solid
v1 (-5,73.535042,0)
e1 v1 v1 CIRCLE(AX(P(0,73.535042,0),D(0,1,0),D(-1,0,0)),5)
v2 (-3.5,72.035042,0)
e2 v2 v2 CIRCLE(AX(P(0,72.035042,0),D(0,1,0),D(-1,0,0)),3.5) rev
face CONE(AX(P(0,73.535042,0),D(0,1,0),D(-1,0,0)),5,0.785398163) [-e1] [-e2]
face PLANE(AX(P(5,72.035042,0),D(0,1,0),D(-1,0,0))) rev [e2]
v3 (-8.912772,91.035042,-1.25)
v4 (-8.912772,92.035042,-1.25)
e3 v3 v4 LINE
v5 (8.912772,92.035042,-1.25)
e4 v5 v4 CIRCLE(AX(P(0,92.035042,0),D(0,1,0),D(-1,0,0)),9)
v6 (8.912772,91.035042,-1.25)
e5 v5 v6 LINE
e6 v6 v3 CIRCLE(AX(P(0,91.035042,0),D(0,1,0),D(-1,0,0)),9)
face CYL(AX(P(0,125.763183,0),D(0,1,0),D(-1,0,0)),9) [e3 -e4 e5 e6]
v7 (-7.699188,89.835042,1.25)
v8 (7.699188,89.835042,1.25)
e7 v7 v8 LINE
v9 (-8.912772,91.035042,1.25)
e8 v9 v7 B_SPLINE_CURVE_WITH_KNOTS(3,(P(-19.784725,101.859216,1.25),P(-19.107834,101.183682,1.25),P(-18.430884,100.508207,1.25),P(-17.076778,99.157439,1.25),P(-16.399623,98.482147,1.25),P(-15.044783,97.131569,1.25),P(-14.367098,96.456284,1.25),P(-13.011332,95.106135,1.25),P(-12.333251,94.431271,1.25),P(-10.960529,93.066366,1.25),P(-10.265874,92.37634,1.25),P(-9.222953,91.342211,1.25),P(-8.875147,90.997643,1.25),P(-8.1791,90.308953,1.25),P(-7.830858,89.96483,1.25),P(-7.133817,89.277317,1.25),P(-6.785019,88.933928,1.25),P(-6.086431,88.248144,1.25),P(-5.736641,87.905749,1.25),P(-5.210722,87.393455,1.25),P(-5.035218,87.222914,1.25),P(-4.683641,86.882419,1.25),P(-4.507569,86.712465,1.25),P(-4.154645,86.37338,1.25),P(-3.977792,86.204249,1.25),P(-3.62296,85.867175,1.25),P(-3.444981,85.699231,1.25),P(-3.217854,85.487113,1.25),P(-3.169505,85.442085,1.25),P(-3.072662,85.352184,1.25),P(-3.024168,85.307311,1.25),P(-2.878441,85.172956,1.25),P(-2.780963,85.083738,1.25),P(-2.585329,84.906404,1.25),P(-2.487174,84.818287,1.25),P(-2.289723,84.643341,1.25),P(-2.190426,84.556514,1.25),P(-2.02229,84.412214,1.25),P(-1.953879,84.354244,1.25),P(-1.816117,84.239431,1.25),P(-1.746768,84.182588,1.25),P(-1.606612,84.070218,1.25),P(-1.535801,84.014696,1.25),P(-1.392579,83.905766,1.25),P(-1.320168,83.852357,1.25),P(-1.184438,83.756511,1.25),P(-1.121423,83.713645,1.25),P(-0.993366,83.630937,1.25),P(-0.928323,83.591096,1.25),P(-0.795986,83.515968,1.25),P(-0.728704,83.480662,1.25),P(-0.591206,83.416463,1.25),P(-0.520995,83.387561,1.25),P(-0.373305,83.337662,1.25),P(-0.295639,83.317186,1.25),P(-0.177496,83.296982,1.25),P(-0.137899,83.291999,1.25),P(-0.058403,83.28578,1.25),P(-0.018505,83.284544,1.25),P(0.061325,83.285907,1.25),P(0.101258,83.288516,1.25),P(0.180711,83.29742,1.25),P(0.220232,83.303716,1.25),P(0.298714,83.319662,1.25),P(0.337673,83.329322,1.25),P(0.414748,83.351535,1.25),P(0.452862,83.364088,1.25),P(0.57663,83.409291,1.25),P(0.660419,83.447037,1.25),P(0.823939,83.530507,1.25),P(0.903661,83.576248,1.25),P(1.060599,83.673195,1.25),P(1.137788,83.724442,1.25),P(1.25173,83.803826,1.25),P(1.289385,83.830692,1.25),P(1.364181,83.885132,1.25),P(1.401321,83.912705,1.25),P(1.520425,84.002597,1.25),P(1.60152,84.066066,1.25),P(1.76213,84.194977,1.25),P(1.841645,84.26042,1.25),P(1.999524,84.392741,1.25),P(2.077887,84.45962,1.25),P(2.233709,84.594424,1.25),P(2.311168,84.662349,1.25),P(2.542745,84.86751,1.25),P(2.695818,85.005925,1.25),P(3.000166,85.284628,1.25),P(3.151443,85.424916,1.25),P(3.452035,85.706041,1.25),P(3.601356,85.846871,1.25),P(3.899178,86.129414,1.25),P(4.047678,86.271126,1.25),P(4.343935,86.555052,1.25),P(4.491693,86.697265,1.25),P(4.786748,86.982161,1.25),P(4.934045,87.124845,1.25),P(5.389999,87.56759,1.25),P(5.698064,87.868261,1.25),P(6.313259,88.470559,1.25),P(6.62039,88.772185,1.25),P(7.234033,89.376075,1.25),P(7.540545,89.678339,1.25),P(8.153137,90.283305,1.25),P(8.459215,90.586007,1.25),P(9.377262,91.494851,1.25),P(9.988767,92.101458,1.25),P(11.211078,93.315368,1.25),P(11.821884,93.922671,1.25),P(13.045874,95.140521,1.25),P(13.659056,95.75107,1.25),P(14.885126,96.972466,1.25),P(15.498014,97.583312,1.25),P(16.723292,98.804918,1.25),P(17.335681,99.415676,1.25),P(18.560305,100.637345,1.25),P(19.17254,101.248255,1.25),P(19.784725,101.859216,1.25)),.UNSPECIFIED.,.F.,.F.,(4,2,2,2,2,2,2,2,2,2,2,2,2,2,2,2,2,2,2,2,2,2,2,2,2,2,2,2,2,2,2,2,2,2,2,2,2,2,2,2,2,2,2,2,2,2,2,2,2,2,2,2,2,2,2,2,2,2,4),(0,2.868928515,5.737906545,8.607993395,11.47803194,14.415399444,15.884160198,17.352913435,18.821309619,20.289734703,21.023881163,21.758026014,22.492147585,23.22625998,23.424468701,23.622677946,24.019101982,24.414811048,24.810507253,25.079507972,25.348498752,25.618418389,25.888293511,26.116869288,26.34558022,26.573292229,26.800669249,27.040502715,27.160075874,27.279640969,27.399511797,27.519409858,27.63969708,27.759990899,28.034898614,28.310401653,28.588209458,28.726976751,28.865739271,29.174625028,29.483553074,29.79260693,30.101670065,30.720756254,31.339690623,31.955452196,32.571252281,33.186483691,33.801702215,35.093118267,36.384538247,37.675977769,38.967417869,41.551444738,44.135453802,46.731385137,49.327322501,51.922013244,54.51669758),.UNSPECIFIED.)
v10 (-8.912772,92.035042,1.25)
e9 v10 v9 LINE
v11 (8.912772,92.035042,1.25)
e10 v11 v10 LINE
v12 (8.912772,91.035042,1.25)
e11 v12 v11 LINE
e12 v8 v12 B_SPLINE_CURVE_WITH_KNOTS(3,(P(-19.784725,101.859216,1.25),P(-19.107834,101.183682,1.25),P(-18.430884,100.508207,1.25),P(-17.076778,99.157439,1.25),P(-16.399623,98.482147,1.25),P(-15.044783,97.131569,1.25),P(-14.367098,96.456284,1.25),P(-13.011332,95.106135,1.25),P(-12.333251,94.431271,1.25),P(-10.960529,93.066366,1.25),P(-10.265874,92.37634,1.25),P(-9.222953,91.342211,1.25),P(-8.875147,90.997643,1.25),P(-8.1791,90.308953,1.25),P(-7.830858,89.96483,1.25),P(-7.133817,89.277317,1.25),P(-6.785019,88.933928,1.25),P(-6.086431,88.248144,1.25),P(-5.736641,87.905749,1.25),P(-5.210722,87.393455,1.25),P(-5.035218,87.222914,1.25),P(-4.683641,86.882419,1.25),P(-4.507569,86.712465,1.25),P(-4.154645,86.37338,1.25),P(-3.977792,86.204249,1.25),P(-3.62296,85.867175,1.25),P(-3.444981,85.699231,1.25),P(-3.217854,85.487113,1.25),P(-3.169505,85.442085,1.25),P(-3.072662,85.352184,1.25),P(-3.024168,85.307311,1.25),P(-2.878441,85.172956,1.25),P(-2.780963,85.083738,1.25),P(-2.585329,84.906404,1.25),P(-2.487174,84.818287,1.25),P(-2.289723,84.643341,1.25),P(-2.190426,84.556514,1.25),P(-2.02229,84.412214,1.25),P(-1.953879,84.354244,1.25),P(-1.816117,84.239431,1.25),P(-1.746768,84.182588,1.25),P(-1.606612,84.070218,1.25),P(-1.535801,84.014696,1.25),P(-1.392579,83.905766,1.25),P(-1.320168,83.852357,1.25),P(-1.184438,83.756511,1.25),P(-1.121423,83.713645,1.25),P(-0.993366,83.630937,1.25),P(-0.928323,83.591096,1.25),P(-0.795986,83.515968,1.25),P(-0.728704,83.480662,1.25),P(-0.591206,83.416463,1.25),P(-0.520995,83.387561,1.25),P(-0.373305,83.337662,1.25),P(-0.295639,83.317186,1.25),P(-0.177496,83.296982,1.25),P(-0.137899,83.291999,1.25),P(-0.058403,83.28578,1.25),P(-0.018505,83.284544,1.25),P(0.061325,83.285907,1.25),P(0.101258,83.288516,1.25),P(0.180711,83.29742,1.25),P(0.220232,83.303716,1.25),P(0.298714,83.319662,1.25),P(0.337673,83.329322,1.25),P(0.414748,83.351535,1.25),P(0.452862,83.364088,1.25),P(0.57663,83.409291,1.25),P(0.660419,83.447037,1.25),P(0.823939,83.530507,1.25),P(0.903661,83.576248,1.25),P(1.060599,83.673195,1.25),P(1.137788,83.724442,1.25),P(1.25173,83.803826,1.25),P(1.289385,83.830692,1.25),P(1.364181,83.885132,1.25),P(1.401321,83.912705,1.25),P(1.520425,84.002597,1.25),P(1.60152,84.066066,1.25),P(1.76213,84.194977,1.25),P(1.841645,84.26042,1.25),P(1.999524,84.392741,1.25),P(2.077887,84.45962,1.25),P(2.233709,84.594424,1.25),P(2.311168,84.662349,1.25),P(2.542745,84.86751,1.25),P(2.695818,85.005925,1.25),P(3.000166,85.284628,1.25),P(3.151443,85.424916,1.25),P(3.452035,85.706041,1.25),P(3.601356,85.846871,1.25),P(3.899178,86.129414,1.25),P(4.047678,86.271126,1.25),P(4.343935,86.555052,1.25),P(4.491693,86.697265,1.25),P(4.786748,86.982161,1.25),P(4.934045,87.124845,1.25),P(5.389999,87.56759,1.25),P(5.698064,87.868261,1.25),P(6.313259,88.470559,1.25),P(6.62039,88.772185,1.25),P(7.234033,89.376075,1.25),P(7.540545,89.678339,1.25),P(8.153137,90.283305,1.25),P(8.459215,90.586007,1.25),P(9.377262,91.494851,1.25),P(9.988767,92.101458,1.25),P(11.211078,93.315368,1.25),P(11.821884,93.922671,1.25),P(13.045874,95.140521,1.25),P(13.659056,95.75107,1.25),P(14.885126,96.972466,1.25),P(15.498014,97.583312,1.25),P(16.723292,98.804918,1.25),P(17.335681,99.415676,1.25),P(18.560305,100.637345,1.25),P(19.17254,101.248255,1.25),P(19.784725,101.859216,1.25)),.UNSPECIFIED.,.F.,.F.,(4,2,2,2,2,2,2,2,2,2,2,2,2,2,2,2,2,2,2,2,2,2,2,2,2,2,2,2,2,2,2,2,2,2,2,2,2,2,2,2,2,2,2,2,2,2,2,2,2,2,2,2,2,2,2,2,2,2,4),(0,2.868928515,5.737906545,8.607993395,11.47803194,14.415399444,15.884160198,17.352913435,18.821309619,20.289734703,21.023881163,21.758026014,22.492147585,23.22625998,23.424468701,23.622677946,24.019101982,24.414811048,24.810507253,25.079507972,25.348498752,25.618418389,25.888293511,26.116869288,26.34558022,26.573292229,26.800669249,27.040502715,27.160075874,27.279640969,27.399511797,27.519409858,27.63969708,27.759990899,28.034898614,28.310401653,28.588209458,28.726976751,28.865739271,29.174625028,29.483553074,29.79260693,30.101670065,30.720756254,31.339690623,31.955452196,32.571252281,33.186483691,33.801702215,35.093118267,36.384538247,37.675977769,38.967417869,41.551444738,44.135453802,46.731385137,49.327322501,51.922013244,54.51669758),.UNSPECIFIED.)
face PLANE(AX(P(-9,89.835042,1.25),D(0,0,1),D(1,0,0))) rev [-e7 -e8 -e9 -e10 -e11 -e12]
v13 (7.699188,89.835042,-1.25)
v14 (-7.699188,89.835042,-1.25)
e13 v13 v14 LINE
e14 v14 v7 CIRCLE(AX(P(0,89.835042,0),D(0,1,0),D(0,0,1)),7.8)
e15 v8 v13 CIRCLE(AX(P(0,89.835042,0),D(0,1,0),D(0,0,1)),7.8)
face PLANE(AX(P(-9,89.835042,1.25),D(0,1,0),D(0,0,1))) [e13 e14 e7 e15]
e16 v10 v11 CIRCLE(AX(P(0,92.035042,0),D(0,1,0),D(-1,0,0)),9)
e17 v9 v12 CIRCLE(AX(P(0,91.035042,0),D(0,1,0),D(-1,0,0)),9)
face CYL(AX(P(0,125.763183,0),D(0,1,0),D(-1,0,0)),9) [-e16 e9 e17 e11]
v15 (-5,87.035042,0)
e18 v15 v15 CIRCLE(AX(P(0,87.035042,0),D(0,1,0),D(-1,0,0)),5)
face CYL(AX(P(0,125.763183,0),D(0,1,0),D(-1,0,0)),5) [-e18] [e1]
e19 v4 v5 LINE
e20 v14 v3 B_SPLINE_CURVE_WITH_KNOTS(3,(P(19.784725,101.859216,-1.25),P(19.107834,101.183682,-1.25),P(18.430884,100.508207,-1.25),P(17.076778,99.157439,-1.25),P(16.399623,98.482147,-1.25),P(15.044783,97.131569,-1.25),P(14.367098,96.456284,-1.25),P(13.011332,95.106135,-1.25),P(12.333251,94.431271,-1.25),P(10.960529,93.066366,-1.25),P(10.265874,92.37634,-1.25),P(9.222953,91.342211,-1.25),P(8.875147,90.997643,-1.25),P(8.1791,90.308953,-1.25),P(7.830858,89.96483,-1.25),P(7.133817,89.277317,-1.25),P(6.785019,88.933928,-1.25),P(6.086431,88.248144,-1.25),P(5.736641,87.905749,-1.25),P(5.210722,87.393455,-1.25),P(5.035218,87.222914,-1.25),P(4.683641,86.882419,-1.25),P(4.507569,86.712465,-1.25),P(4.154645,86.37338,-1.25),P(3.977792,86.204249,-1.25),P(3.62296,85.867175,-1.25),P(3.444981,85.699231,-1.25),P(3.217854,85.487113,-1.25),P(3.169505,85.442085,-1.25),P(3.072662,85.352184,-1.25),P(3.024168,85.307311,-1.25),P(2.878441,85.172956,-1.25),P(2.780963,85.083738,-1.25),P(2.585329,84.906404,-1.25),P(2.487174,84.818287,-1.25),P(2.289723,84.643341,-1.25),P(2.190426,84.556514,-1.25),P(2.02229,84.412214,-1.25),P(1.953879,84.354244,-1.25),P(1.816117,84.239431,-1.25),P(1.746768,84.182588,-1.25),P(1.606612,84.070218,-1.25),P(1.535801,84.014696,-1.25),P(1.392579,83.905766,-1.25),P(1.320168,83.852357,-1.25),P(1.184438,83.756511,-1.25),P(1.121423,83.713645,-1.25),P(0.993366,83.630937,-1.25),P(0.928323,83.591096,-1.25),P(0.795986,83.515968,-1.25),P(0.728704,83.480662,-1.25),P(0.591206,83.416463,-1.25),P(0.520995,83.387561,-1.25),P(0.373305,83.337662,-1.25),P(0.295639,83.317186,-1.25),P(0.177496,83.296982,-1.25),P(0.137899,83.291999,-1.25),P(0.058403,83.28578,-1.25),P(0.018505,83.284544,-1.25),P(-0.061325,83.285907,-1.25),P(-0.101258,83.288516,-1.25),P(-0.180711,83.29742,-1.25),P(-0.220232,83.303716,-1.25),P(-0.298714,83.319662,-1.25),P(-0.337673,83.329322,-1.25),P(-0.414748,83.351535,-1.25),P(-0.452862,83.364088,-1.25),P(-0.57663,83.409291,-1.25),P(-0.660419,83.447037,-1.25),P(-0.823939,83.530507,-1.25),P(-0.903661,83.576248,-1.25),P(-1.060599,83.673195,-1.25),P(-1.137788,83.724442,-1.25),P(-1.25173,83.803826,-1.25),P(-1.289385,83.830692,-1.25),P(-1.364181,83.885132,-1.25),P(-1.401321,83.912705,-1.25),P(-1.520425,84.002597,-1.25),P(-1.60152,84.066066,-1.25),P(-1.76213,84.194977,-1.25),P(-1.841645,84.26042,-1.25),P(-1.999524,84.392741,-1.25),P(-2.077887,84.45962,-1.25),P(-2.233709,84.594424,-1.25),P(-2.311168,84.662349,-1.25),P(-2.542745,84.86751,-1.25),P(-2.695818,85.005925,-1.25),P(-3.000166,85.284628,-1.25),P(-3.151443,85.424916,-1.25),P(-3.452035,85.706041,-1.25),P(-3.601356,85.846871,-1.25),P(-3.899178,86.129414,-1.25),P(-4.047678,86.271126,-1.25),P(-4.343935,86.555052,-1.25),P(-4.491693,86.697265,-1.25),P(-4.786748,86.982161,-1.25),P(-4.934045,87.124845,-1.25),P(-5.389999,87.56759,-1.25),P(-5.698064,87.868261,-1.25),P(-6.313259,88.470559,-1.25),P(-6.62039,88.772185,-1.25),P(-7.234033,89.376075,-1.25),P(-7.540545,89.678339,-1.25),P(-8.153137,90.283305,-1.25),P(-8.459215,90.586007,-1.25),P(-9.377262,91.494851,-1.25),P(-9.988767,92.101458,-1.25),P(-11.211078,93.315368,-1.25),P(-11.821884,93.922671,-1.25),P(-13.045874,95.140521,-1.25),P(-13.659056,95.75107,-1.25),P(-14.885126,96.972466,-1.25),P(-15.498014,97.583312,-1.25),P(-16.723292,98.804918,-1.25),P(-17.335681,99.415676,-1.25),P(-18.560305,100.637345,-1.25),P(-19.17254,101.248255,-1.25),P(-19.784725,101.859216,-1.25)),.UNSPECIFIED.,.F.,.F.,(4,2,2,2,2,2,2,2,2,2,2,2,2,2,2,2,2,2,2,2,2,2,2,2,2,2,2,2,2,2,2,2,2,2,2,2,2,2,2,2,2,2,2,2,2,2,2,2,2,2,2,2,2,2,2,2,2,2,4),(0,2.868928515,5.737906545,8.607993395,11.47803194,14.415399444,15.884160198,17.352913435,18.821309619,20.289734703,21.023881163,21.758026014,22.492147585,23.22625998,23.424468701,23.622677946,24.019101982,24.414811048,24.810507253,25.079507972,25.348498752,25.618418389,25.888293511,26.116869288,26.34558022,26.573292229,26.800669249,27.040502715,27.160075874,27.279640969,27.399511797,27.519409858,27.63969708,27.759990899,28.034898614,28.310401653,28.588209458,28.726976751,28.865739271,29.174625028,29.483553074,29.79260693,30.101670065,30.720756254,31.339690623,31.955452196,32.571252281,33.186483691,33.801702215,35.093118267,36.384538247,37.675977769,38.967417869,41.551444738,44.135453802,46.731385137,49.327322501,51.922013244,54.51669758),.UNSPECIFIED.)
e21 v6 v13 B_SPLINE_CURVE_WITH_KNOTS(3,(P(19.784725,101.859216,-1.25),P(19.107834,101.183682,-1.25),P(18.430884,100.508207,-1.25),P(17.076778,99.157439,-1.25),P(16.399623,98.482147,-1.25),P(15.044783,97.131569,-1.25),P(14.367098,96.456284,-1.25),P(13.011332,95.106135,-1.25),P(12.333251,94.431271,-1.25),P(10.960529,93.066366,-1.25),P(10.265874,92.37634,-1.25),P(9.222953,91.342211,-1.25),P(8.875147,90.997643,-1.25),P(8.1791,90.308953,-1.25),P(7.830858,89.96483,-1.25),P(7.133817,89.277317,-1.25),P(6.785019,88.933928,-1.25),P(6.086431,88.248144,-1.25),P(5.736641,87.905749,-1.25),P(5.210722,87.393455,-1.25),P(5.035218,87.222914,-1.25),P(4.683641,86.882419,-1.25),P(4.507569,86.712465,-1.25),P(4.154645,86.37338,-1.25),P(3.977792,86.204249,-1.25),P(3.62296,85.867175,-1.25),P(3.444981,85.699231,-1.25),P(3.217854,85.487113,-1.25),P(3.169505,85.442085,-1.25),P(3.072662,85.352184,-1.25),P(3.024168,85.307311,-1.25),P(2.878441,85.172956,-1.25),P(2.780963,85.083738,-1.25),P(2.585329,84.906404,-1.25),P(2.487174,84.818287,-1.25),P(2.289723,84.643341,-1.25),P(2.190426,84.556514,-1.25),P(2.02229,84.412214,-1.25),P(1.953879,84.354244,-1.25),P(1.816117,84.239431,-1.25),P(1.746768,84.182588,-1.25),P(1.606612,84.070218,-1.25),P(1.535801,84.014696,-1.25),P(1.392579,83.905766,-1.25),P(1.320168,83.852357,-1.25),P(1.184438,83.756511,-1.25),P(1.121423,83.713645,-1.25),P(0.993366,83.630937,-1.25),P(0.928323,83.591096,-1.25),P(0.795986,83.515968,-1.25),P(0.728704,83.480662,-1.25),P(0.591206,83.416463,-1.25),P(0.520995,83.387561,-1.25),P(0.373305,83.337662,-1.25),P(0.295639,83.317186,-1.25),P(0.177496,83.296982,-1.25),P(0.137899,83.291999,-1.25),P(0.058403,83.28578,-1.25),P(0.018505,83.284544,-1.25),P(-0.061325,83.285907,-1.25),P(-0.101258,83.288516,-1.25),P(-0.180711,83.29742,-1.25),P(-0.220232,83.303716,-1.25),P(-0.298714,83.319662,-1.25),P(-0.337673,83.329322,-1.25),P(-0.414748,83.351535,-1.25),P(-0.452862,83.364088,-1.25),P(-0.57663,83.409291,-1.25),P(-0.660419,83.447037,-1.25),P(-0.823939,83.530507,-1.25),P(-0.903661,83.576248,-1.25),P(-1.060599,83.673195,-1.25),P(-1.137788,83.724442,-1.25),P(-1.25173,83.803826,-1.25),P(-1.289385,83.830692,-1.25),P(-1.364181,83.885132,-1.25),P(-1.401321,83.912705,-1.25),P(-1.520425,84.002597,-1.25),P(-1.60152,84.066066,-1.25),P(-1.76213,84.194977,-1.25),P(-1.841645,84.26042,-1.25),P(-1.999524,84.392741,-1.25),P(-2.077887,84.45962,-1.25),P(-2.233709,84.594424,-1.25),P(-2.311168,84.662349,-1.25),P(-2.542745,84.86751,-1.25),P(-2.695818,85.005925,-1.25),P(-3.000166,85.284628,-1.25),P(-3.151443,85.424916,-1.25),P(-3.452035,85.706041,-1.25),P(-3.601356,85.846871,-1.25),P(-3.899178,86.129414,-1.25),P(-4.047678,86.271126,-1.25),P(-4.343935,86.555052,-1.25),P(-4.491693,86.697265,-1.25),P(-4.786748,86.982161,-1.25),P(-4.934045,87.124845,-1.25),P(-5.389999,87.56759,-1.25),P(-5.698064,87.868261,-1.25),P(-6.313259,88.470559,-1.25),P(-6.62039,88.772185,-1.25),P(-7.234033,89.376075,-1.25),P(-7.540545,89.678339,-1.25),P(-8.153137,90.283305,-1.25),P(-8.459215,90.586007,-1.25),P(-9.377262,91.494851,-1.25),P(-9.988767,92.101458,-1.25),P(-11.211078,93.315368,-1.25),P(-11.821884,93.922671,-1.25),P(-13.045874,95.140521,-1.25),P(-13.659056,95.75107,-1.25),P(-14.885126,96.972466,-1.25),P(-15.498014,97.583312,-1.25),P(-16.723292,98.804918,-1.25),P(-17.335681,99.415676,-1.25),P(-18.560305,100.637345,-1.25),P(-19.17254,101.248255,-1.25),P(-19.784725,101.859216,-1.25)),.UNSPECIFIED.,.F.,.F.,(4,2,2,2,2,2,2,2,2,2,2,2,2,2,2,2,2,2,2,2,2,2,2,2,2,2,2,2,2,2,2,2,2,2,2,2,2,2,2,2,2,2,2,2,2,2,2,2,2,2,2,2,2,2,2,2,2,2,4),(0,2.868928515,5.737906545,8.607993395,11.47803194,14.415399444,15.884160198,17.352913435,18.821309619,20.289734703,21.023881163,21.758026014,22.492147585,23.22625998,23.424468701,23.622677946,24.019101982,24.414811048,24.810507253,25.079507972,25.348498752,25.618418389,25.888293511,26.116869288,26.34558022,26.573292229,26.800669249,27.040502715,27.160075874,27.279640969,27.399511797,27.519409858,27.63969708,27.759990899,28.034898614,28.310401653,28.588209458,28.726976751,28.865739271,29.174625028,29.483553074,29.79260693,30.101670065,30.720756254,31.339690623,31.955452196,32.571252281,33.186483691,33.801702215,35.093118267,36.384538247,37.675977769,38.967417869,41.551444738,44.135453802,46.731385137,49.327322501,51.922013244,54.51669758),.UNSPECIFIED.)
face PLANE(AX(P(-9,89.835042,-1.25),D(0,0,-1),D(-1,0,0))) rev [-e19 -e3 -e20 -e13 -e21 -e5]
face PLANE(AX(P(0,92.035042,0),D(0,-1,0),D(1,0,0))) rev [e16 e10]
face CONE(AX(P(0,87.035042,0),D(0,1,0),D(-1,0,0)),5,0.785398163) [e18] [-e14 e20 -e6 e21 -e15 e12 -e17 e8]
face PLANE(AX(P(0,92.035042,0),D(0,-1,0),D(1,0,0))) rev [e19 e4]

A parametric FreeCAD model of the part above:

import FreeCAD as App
import Part
import Sketcher
from FreeCAD import Vector
Q = App.Units.Quantity


def edges_at(feature, points):
    """Names of the edges that pass closest to the given points."""
    edges = feature.Shape.Edges
    near = lambda p: min(range(len(edges)), key=lambda i: edges[i].distToShape(Part.Vertex(*p))[0])
    return sorted({f"Edge{near(p) + 1}" for p in points})


def add_polygon(sketch, points):
    """Adds a closed chain of lines whose ends are joined by coincident constraints."""
    first, n = sketch.GeometryCount, len(points)
    for a, b in zip(points, points[1:] + points[:1]):
        sketch.addGeometry(Part.LineSegment(App.Vector(*a, 0), App.Vector(*b, 0)), False)
    for i in range(n):
        sketch.addConstraint(Sketcher.Constraint("Coincident", first + i, 2, first + (i + 1) % n, 1))

doc = App.newDocument("Part")
body = doc.addObject("PartDesign::Body", "Body")

# Sketch on XY plane
sketch1 = body.newObject("Sketcher::SketchObject", "Sketch")
sketch1.AttachmentSupport = (doc.getObject("XY_Plane"), [""])
sketch1.MapMode = "FlatFace"
add_polygon(sketch1, [(0, 92), (0, 72), (5, 72), (5, 87), (9, 91), (9, 92)])  # lines 0-5
sketch1.addConstraint(Sketcher.Constraint("Vertical", 0))
sketch1.addConstraint(Sketcher.Constraint("Horizontal", 1))
sketch1.addConstraint(Sketcher.Constraint("Vertical", 2))
sketch1.addConstraint(Sketcher.Constraint("Vertical", 4))
sketch1.addConstraint(Sketcher.Constraint("Horizontal", 5))
sketch1.addConstraint(Sketcher.Constraint("PointOnObject", 0, 2, -2))
sketch1.addConstraint(Sketcher.Constraint("DistanceX", 1, 1, 1, 2, Q("5 mm")))
sketch1.addConstraint(Sketcher.Constraint("DistanceX", 5, 2, 5, 1, Q("9 mm")))
sketch1.addConstraint(Sketcher.Constraint("DistanceY", 0, 2, 0, 1, Q("20 mm")))
sketch1.addConstraint(Sketcher.Constraint("DistanceY", 2, 1, 2, 2, Q("15 mm")))
sketch1.addConstraint(Sketcher.Constraint("DistanceY", 4, 1, 4, 2, Q("1 mm")))
sketch1.addConstraint(Sketcher.Constraint("DistanceY", -1, 1, 0, 2, Q("72.035042 mm")))
revolution = body.newObject("PartDesign::Revolution", "Revolution")
revolution.Profile = sketch1
revolution.ReferenceAxis = (sketch1, ["V_Axis"])
revolution.Angle = 360

# Sketch on XZ plane
sketch2 = body.newObject("Sketcher::SketchObject", "Sketch001")
sketch2.AttachmentSupport = (doc.getObject("XZ_Plane"), [""])
sketch2.MapMode = "FlatFace"
sketch2.AttachmentOffset = App.Placement(Vector(0, 0, -92.035042), App.Rotation())
add_polygon(sketch2, [(9, 1.2), (9, -1.2), (-9, -1.2), (-9, 1.2)])  # lines 0-3
sketch2.addConstraint(Sketcher.Constraint("Vertical", 0))
sketch2.addConstraint(Sketcher.Constraint("Horizontal", 1))
sketch2.addConstraint(Sketcher.Constraint("Vertical", 2))
sketch2.addConstraint(Sketcher.Constraint("Horizontal", 3))
sketch2.addConstraint(Sketcher.Constraint("Symmetric", 0, 2, 2, 2, -1, 1))
sketch2.addConstraint(Sketcher.Constraint("DistanceX", 1, 2, 1, 1, Q("18 mm")))
sketch2.addConstraint(Sketcher.Constraint("DistanceY", 0, 2, 0, 1, Q("2.5 mm")))
pocket1 = body.newObject("PartDesign::Pocket", "Pocket")
pocket1.Profile = sketch2
pocket1.Length = 2.2
pocket1.Reversed = True
doc.recompute()

chamfer = body.newObject("PartDesign::Chamfer", "Chamfer")
chamfer.Base = (pocket1, edges_at(pocket1, [(5, 72.035, 0)]))
chamfer.Size = 1.5

doc.recompute()
